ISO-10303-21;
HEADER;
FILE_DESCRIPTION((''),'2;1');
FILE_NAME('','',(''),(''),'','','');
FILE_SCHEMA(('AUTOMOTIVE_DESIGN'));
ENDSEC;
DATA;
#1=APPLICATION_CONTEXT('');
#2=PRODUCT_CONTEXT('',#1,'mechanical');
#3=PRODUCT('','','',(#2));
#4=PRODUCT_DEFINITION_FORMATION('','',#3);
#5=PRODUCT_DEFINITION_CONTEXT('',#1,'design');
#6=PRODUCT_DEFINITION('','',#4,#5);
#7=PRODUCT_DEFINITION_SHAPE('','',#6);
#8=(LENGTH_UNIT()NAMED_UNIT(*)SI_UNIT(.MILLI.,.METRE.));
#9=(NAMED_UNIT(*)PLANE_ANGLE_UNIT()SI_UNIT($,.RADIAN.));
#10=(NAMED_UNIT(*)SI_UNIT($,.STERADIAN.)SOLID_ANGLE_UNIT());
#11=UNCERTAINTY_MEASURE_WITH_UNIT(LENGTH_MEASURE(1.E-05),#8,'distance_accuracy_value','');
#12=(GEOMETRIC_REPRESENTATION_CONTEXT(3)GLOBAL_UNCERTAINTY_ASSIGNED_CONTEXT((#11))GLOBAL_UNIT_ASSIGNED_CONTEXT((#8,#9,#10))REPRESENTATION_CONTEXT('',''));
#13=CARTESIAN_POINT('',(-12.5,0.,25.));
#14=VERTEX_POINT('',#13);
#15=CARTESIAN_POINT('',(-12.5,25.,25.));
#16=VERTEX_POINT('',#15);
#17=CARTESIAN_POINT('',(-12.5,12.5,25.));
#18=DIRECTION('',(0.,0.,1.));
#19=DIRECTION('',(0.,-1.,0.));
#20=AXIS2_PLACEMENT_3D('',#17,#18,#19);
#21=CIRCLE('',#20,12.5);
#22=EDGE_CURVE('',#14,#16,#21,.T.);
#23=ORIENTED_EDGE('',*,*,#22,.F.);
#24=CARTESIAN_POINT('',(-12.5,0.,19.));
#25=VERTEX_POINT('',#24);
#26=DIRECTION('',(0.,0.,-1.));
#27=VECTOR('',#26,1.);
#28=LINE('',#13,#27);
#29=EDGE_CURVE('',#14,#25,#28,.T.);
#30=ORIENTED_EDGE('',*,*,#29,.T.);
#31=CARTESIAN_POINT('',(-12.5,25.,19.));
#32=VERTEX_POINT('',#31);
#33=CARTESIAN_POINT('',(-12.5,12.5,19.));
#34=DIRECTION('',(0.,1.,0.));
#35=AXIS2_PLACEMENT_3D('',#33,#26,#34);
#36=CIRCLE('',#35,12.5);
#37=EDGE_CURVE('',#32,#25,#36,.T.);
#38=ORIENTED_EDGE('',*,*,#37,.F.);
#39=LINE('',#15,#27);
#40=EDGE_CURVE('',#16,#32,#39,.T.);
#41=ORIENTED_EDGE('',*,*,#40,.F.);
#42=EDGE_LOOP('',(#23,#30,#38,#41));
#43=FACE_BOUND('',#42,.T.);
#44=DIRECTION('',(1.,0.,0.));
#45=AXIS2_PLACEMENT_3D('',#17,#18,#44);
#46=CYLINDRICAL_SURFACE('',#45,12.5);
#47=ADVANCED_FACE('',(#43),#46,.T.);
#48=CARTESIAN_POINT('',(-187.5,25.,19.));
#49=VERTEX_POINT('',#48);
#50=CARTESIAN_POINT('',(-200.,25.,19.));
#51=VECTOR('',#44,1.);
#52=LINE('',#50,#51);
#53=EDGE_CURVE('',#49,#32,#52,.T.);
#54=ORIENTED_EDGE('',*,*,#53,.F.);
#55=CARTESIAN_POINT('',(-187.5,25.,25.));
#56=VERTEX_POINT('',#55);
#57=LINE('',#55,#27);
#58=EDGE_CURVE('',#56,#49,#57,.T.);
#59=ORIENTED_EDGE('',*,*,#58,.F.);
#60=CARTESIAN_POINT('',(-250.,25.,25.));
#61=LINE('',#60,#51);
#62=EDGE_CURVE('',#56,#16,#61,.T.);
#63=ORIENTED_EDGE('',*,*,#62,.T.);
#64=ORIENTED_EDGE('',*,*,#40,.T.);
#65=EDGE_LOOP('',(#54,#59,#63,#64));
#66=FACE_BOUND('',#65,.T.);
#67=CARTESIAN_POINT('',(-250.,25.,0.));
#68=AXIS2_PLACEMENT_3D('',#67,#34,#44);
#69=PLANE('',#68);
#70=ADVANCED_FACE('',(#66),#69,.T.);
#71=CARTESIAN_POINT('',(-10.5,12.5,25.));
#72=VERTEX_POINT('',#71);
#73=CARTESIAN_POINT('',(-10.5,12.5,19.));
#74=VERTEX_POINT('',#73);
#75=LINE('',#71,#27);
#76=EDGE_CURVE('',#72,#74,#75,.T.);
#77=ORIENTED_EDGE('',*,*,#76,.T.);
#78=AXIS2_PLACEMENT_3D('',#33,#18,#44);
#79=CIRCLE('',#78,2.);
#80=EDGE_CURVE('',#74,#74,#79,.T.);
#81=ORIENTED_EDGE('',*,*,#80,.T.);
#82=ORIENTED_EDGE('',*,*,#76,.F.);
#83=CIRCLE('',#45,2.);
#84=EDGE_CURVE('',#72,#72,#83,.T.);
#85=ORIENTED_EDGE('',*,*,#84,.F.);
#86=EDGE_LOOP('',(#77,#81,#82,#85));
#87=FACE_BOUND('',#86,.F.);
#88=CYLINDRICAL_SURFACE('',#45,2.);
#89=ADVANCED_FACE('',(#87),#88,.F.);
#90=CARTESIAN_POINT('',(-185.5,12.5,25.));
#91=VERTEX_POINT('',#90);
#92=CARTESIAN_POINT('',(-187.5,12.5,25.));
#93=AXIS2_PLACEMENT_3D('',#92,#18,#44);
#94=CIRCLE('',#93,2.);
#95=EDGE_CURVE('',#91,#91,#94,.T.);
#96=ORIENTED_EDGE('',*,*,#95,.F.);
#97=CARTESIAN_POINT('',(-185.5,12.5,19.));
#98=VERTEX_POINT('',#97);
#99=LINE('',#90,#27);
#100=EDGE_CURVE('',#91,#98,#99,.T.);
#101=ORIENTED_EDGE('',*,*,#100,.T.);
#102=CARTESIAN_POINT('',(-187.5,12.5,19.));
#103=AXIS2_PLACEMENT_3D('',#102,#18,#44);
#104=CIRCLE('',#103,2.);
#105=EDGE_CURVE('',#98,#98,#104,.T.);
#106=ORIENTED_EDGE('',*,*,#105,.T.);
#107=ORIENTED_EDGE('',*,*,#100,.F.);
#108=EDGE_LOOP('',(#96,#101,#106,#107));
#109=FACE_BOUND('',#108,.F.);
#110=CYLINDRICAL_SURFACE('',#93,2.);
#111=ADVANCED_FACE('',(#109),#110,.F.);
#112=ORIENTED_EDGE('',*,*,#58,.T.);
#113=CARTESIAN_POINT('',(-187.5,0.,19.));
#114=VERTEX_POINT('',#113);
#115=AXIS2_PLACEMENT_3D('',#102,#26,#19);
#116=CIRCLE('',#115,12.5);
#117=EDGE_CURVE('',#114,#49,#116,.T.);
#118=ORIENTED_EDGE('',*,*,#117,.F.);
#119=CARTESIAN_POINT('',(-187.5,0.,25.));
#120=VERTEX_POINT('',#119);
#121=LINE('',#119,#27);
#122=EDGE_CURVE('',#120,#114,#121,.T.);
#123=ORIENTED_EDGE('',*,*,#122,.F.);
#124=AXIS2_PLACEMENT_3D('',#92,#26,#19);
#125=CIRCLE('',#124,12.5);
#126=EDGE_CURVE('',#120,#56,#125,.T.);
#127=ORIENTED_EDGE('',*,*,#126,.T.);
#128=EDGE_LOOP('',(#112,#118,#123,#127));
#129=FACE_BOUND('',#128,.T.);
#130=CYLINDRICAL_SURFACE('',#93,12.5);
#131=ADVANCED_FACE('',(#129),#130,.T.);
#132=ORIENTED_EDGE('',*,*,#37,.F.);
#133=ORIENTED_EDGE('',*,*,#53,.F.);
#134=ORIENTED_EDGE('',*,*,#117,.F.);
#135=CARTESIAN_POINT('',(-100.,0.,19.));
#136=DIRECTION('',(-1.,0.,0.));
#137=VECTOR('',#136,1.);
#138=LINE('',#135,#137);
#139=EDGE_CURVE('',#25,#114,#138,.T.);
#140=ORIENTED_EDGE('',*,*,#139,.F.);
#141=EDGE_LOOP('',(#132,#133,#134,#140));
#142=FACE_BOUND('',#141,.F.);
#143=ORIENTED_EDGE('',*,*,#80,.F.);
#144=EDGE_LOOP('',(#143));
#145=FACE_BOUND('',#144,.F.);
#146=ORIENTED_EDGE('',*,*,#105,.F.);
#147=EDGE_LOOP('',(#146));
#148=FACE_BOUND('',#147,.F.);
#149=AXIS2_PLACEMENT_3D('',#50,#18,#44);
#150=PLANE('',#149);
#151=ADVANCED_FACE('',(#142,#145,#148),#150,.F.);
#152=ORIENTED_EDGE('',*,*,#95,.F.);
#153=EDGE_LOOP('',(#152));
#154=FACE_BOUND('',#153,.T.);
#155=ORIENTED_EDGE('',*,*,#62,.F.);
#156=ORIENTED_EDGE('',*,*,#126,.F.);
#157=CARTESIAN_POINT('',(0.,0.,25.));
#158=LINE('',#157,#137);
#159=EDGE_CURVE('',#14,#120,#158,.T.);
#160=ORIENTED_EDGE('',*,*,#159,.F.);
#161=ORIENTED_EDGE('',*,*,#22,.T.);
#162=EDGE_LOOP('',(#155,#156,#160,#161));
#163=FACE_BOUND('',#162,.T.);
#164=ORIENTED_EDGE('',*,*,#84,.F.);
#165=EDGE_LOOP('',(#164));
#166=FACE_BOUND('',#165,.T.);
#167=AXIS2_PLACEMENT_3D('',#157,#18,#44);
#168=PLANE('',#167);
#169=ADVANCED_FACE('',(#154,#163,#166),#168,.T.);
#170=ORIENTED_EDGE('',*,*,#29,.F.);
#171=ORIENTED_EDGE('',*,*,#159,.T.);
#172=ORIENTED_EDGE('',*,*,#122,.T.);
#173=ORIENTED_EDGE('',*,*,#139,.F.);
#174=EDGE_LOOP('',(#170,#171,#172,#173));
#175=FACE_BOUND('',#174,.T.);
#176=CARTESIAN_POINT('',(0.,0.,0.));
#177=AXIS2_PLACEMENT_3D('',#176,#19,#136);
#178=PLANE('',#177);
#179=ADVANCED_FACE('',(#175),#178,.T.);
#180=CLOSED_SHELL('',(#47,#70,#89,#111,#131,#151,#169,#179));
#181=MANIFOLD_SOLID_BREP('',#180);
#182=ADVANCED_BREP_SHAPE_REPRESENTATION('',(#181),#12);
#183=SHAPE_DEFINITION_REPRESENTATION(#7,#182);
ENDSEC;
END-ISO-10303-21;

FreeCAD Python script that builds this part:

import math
import FreeCAD as App
import Part
import Sketcher
from FreeCAD import Vector
Q = App.Units.Quantity

doc = App.newDocument("Part")
params = doc.addObject("Spreadsheet::Sheet", "Params")
for row, (alias, value) in enumerate([
    ("sketch1_width", "250 mm"),
    ("sketch1_height", "25 mm"),
    ("pad1_length", "25 mm"),
    ("sketch2_width", "50 mm"),
    ("sketch2_height", "25 mm"),
    ("pocket1_length", "25 mm"),
    ("sketch3_diameter", "4 mm"),
    ("sketch3_radius", "12.5 mm"),
    ("pocket2_length", "25 mm"),
    ("sketch4_height", "19 mm"),
    ("sketch4_width", "200 mm"),
    ("pocket3_length", "100 mm"),
], start=1):
    params.set(f"A{row}", alias)
    params.set(f"B{row}", "=" + value)
    params.setAlias(f"B{row}", alias)

body = doc.addObject("PartDesign::Body", "Body")

sketch1 = body.newObject("Sketcher::SketchObject", "Sketch")
sketch1.AttachmentSupport = (doc.getObject("XY_Plane"), [""])
sketch1.MapMode = "FlatFace"
sketch1.addGeometry([
    Part.LineSegment(Vector(-250, 0, 0), Vector(0, 0, 0)),
    Part.LineSegment(Vector(0, 0, 0), Vector(0, 25, 0)),
    Part.LineSegment(Vector(0, 25, 0), Vector(-250, 25, 0)),
    Part.LineSegment(Vector(-250, 25, 0), Vector(-250, 0, 0)),
], False)
sketch1.addConstraint([
    Sketcher.Constraint("Coincident", 0, 2, 1, 1),
    Sketcher.Constraint("Coincident", 1, 2, 2, 1),
    Sketcher.Constraint("Coincident", 2, 2, 3, 1),
    Sketcher.Constraint("Coincident", 3, 2, 0, 1),
    Sketcher.Constraint("Horizontal", 0),
    Sketcher.Constraint("Vertical", 1),
    Sketcher.Constraint("Horizontal", 2),
    Sketcher.Constraint("Vertical", 3),
    Sketcher.Constraint("Coincident", 0, 2, -1, 1),
    Sketcher.Constraint("DistanceX", 0, 1, 0, 2, Q("250 mm")),
    Sketcher.Constraint("DistanceY", 1, 1, 1, 2, Q("25 mm")),
])
sketch1.setExpression("Constraints[9]", "Params.sketch1_width")
sketch1.setExpression("Constraints[10]", "Params.sketch1_height")
pad1 = body.newObject("PartDesign::Pad", "Pad")
pad1.Profile = sketch1
pad1.setExpression("Length", "Params.pad1_length")

sketch2 = body.newObject("Sketcher::SketchObject", "Sketch001")
sketch2.AttachmentSupport = (doc.getObject("XY_Plane"), [""])
sketch2.MapMode = "FlatFace"
sketch2.AttachmentOffset = App.Placement(Vector(0, 0, 25), App.Rotation())
sketch2.addGeometry([
    Part.LineSegment(Vector(-200, 0, 0), Vector(-200, 25, 0)),
    Part.LineSegment(Vector(-200, 25, 0), Vector(-250, 25, 0)),
    Part.LineSegment(Vector(-250, 25, 0), Vector(-250, 0, 0)),
    Part.LineSegment(Vector(-250, 0, 0), Vector(-200, 0, 0)),
], False)
sketch2.addConstraint([
    Sketcher.Constraint("Coincident", 0, 2, 1, 1),
    Sketcher.Constraint("Coincident", 1, 2, 2, 1),
    Sketcher.Constraint("Coincident", 2, 2, 3, 1),
    Sketcher.Constraint("Coincident", 3, 2, 0, 1),
    Sketcher.Constraint("Vertical", 0),
    Sketcher.Constraint("Horizontal", 1),
    Sketcher.Constraint("Vertical", 2),
    Sketcher.Constraint("Horizontal", 3),
    Sketcher.Constraint("PointOnObject", 2, 2, -1),
    Sketcher.Constraint("DistanceX", 1, 2, 1, 1, Q("50 mm")),
    Sketcher.Constraint("DistanceY", 0, 1, 0, 2, Q("25 mm")),
    Sketcher.Constraint("DistanceX", 0, 2, -1, 1, Q("200 mm")),
])
sketch2.setExpression("Constraints[9]", "Params.sketch2_width")
sketch2.setExpression("Constraints[10]", "Params.sketch2_height")
pocket1 = body.newObject("PartDesign::Pocket", "Pocket")
pocket1.Profile = sketch2
pocket1.setExpression("Length", "Params.pocket1_length")

sketch3 = body.newObject("Sketcher::SketchObject", "Sketch002")
sketch3.AttachmentSupport = (doc.getObject("XY_Plane"), [""])
sketch3.MapMode = "FlatFace"
sketch3.AttachmentOffset = App.Placement(Vector(0, 0, 25), App.Rotation())
sketch3.addGeometry([
    Part.ArcOfCircle(Part.Circle(Vector(-187.5, 12.5, 0), Vector(0, 0, 1), 12.5), math.radians(90), math.radians(180)),
    Part.LineSegment(Vector(-187.5, 25, 0), Vector(-200, 25, 0)),
    Part.LineSegment(Vector(-200, 25, 0), Vector(-200, 12.5, 0)),
    Part.LineSegment(Vector(-200, 0, 0), Vector(-187.5, 0, 0)),
    Part.ArcOfCircle(Part.Circle(Vector(-187.5, 12.5, 0), Vector(0, 0, 1), 12.5), math.radians(180), math.radians(270)),
    Part.LineSegment(Vector(-200, 12.5, 0), Vector(-200, 0, 0)),
    Part.LineSegment(Vector(0, 25, 0), Vector(-12.5, 25, 0)),
    Part.ArcOfCircle(Part.Circle(Vector(-12.5, 12.5, 0), Vector(0, 0, 1), 12.5), math.radians(0), math.radians(90)),
    Part.LineSegment(Vector(0, 12.5, 0), Vector(0, 25, 0)),
    Part.ArcOfCircle(Part.Circle(Vector(-12.5, 12.5, 0), Vector(0, 0, 1), 12.5), math.radians(-90), math.radians(0)),
    Part.LineSegment(Vector(-12.5, 0, 0), Vector(0, 0, 0)),
    Part.LineSegment(Vector(0, 0, 0), Vector(0, 12.5, 0)),
    Part.Circle(Vector(-187.5, 12.5, 0), Vector(0, 0, 1), 2),
    Part.Circle(Vector(-12.5, 12.5, 0), Vector(0, 0, 1), 2),
], False)
sketch3.addConstraint([
    Sketcher.Constraint("Tangent", 0, 1, 1, 1),
    Sketcher.Constraint("Coincident", 1, 2, 2, 1),
    Sketcher.Constraint("Tangent", 2, 2, 0, 2),
    Sketcher.Constraint("Tangent", 3, 2, 4, 2),
    Sketcher.Constraint("Tangent", 4, 1, 5, 1),
    Sketcher.Constraint("Coincident", 5, 2, 3, 1),
    Sketcher.Constraint("Tangent", 6, 2, 7, 2),
    Sketcher.Constraint("Tangent", 7, 1, 8, 1),
    Sketcher.Constraint("Coincident", 8, 2, 6, 1),
    Sketcher.Constraint("Tangent", 9, 1, 10, 1),
    Sketcher.Constraint("Coincident", 10, 2, 11, 1),
    Sketcher.Constraint("Tangent", 11, 2, 9, 2),
    Sketcher.Constraint("Horizontal", 1),
    Sketcher.Constraint("Vertical", 2),
    Sketcher.Constraint("Horizontal", 3),
    Sketcher.Constraint("Vertical", 5),
    Sketcher.Constraint("Horizontal", 6),
    Sketcher.Constraint("Vertical", 8),
    Sketcher.Constraint("Horizontal", 10),
    Sketcher.Constraint("Vertical", 11),
    Sketcher.Constraint("Coincident", 10, 2, -1, 1),
    Sketcher.Constraint("Coincident", 4, 3, 0, 3),
    Sketcher.Constraint("Coincident", 9, 3, 7, 3),
    Sketcher.Constraint("Coincident", 12, 3, 0, 3),
    Sketcher.Constraint("Coincident", 13, 3, 7, 3),
    Sketcher.Constraint("Equal", 0, 4),
    Sketcher.Constraint("Equal", 4, 7),
    Sketcher.Constraint("Equal", 7, 9),
    Sketcher.Constraint("Equal", 12, 13),
    Sketcher.Constraint("PointOnObject", 3, 2, -1),
    Sketcher.Constraint("Diameter", 12, Q("4 mm")),
    Sketcher.Constraint("Radius", 0, Q("12.5 mm")),
    Sketcher.Constraint("DistanceX", 1, 2, -1, 1, Q("200 mm")),
])
sketch3.setExpression("Constraints[30]", "Params.sketch3_diameter")
sketch3.setExpression("Constraints[31]", "Params.sketch3_radius")
pocket2 = body.newObject("PartDesign::Pocket", "Pocket001")
pocket2.Profile = sketch3
pocket2.setExpression("Length", "Params.pocket2_length")

sketch4 = body.newObject("Sketcher::SketchObject", "Sketch003")
sketch4.AttachmentSupport = (doc.getObject("XZ_Plane"), [""])
sketch4.MapMode = "FlatFace"
sketch4.AttachmentOffset = App.Placement(Vector(0, 0, -25), App.Rotation())
sketch4.addGeometry([
    Part.LineSegment(Vector(0, 0, 0), Vector(-200, 0, 0)),
    Part.LineSegment(Vector(-200, 0, 0), Vector(-200, 19, 0)),
    Part.LineSegment(Vector(-200, 19, 0), Vector(0, 19, 0)),
    Part.LineSegment(Vector(0, 19, 0), Vector(0, 0, 0)),
], False)
sketch4.addConstraint([
    Sketcher.Constraint("Coincident", 0, 2, 1, 1),
    Sketcher.Constraint("Coincident", 1, 2, 2, 1),
    Sketcher.Constraint("Coincident", 2, 2, 3, 1),
    Sketcher.Constraint("Coincident", 3, 2, 0, 1),
    Sketcher.Constraint("Horizontal", 0),
    Sketcher.Constraint("Vertical", 1),
    Sketcher.Constraint("Horizontal", 2),
    Sketcher.Constraint("Vertical", 3),
    Sketcher.Constraint("Coincident", 3, 2, -1, 1),
    Sketcher.Constraint("DistanceY", 1, 1, 1, 2, Q("19 mm")),
    Sketcher.Constraint("DistanceX", 0, 2, 0, 1, Q("200 mm")),
])
sketch4.setExpression("Constraints[9]", "Params.sketch4_height")
sketch4.setExpression("Constraints[10]", "Params.sketch4_width")
pocket3 = body.newObject("PartDesign::Pocket", "Pocket002")
pocket3.Profile = sketch4
pocket3.setExpression("Length", "Params.pocket3_length")
pocket3.Reversed = True

doc.recompute()
